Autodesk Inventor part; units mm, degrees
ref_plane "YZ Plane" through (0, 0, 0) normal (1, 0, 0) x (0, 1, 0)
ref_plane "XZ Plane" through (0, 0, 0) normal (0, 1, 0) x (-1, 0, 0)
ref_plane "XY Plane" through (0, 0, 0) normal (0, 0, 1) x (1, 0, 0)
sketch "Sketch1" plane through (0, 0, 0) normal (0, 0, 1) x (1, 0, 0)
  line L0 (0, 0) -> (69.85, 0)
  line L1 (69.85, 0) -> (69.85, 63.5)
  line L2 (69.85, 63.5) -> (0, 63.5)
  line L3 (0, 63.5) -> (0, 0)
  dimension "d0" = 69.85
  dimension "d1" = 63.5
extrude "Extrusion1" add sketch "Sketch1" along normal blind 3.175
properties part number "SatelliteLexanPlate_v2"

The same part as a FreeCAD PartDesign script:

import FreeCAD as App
import Part
import Sketcher
Q = App.Units.Quantity

doc = App.newDocument("Part")
body = doc.addObject("PartDesign::Body", "Body")

# Sketch on XY plane
sketch1 = body.newObject("Sketcher::SketchObject", "Sketch")
sketch1.AttachmentSupport = (doc.getObject("XY_Plane"), [""])
sketch1.MapMode = "FlatFace"
sketch1.addGeometry([
    Part.LineSegment(App.Vector(0, 64, 0), App.Vector(0, 0, 0)),
    Part.LineSegment(App.Vector(0, 0, 0), App.Vector(70, 0, 0)),
    Part.LineSegment(App.Vector(70, 0, 0), App.Vector(70, 64, 0)),
    Part.LineSegment(App.Vector(70, 64, 0), App.Vector(0, 64, 0)),
], False)
sketch1.addConstraint([
    Sketcher.Constraint("Coincident", 0, 2, 1, 1),
    Sketcher.Constraint("Coincident", 1, 2, 2, 1),
    Sketcher.Constraint("Coincident", 2, 2, 3, 1),
    Sketcher.Constraint("Coincident", 3, 2, 0, 1),
    Sketcher.Constraint("Vertical", 0),
    Sketcher.Constraint("Horizontal", 1),
    Sketcher.Constraint("Vertical", 2),
    Sketcher.Constraint("Horizontal", 3),
    Sketcher.Constraint("Coincident", 0, 2, -1, 1),
    Sketcher.Constraint("DistanceY", 0, 2, 0, 1, Q("2.5 in")),
    Sketcher.Constraint("DistanceX", 1, 1, 1, 2, Q("2.75 in")),
])
pad1 = body.newObject("PartDesign::Pad", "Pad")
pad1.Profile = sketch1
pad1.Length = Q("0.125 in")

doc.recompute()
